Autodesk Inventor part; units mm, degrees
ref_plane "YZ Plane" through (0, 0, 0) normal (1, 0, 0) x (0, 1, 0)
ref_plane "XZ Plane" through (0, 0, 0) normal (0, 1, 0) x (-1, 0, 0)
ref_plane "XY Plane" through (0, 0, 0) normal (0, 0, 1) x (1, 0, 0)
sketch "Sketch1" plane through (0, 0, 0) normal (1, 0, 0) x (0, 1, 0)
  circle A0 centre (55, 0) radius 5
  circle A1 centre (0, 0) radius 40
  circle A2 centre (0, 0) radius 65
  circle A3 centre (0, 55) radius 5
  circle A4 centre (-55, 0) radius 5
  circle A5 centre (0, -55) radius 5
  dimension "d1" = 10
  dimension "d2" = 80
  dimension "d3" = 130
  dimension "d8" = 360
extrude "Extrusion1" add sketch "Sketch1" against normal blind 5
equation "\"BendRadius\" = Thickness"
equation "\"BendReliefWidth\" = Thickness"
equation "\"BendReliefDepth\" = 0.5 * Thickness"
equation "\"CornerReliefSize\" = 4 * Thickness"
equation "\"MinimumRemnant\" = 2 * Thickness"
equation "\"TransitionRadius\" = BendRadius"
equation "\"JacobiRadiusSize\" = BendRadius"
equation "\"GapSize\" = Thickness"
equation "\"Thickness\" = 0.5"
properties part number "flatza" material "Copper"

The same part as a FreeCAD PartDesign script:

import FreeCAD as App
import Part
import Sketcher

V = App.Vector

doc = App.newDocument("Part")
body = doc.addObject("PartDesign::Body", "Body")

# Sketch on YZ plane
sketch1 = body.newObject("Sketcher::SketchObject", "Sketch")
sketch1.AttachmentSupport = (doc.getObject("YZ_Plane"), [""])
sketch1.MapMode = "FlatFace"
sketch1.addGeometry([
    Part.Circle(V(0, 0, 0), V(0, 0, 1), 65),  # 0
    Part.Circle(V(0, -55, 0), V(0, 0, 1), 5),  # 1
    Part.Circle(V(-55, 0, 0), V(0, 0, 1), 5),  # 2
    Part.Circle(V(0, 0, 0), V(0, 0, 1), 40),  # 3
    Part.Circle(V(55, 0, 0), V(0, 0, 1), 5),  # 4
    Part.Circle(V(0, 55, 0), V(0, 0, 1), 5),  # 5
], False)
sketch1.addConstraint([
    Sketcher.Constraint("Coincident", 0, 3, -1, 1),
    Sketcher.Constraint("Coincident", 3, 3, -1, 1),
    Sketcher.Constraint("Equal", 1, 2),
    Sketcher.Constraint("Equal", 2, 4),
    Sketcher.Constraint("Equal", 4, 5),
    Sketcher.Constraint("Symmetric", 2, 3, 4, 3, -1, 1),
    Sketcher.Constraint("Symmetric", 1, 3, 5, 3, -1, 1),
    Sketcher.Constraint("PointOnObject", 1, 3, -2),
    Sketcher.Constraint("PointOnObject", 2, 3, -1),
    Sketcher.Constraint("Diameter", 0, 130.0),
    Sketcher.Constraint("Diameter", 1, 10.0),
    Sketcher.Constraint("Diameter", 3, 80.0),
    Sketcher.Constraint("DistanceY", 1, 3, -1, 1, 55.0),
    Sketcher.Constraint("DistanceX", 2, 3, -1, 1, 55.0),
])
pad1 = body.newObject("PartDesign::Pad", "Pad")
pad1.Profile = sketch1
pad1.Length = 5
pad1.Reversed = True

doc.recompute()
